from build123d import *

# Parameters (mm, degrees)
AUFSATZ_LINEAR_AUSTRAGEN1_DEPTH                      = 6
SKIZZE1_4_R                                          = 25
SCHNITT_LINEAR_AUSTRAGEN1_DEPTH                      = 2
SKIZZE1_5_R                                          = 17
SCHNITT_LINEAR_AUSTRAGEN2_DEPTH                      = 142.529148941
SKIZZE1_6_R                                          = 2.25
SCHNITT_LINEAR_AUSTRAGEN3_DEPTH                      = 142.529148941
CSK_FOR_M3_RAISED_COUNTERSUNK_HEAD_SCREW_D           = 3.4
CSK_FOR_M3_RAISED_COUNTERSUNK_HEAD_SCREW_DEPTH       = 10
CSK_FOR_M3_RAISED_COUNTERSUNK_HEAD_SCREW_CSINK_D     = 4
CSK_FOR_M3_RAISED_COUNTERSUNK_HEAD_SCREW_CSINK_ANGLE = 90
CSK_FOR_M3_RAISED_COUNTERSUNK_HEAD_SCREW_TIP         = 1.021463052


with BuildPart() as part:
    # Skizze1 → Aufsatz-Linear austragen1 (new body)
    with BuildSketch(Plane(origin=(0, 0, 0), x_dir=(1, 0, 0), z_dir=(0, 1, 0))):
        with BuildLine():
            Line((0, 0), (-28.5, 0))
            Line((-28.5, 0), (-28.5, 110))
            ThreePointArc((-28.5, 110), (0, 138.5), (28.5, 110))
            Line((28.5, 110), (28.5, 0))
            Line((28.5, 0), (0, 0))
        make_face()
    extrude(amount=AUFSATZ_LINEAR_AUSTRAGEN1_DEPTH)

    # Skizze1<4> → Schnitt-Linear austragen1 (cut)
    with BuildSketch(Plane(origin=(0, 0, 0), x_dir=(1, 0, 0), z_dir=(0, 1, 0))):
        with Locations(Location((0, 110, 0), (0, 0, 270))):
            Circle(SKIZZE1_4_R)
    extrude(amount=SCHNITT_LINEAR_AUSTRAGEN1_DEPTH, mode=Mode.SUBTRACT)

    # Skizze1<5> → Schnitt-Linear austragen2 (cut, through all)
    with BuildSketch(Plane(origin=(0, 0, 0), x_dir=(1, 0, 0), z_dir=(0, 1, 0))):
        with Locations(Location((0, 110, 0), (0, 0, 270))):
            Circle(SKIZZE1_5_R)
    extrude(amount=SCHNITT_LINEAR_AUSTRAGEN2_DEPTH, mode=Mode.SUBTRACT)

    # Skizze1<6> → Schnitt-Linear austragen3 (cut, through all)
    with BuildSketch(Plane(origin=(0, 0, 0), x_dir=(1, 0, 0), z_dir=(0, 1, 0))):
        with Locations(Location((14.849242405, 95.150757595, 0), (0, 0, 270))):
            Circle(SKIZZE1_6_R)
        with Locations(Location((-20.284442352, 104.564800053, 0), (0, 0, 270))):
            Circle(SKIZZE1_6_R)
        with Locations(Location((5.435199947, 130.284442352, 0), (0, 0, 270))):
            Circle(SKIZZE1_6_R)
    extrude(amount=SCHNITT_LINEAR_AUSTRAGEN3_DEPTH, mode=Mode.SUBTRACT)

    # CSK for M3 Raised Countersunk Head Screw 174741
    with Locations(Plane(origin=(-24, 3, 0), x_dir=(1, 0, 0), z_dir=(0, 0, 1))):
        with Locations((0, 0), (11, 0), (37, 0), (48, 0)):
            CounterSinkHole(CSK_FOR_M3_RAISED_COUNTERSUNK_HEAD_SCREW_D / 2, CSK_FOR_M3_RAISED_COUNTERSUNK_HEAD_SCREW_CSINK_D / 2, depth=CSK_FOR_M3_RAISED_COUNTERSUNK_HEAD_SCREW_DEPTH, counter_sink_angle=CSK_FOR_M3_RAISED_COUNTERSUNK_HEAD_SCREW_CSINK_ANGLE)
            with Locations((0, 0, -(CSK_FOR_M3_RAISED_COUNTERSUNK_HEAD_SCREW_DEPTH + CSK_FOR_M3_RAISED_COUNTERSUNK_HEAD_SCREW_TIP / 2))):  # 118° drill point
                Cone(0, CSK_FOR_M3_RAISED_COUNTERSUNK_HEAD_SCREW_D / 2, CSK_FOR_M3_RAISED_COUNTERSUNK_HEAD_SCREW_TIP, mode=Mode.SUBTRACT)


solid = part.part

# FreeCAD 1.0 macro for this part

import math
import FreeCAD as App
import Part
import Sketcher

doc = App.newDocument("Part")
body = doc.addObject("PartDesign::Body", "Body")

# Sketch on XZ plane
sketch1 = body.newObject("Sketcher::SketchObject", "Sketch")
sketch1.AttachmentSupport = (doc.getObject("XZ_Plane"), [""])
sketch1.MapMode = "FlatFace"
sketch1.addGeometry([
    Part.LineSegment(App.Vector(-28, -110, 0), App.Vector(-28, 0, 0)),
    Part.LineSegment(App.Vector(-28, 0, 0), App.Vector(28, 0, 0)),
    Part.LineSegment(App.Vector(28, 0, 0), App.Vector(28, -110, 0)),
    Part.ArcOfCircle(Part.Circle(App.Vector(0, -110, 0), App.Vector(0, 0, 1), 28), math.radians(180), math.radians(360)),
], False)
sketch1.addConstraint([
    Sketcher.Constraint("Coincident", 0, 2, 1, 1),
    Sketcher.Constraint("Coincident", 1, 2, 2, 1),
    Sketcher.Constraint("Tangent", 2, 2, 3, 2),
    Sketcher.Constraint("Tangent", 3, 1, 0, 1),
    Sketcher.Constraint("Vertical", 0),
    Sketcher.Constraint("Horizontal", 1),
    Sketcher.Constraint("Vertical", 2),
    Sketcher.Constraint("Symmetric", 0, 2, 1, 2, -1, 1),
    Sketcher.Constraint("Radius", 3, 28.5),
    Sketcher.Constraint("DistanceY", 0, 1, 0, 2, 110.0),
])
pad1 = body.newObject("PartDesign::Pad", "Pad")
pad1.Profile = sketch1
pad1.Length = 6
pad1.Reversed = True

# Sketch on XZ plane
sketch2 = body.newObject("Sketcher::SketchObject", "Sketch001")
sketch2.AttachmentSupport = (doc.getObject("XZ_Plane"), [""])
sketch2.MapMode = "FlatFace"
sketch2.addGeometry(Part.Circle(App.Vector(0, -110, 0), App.Vector(0, 0, 1), 25), False)
sketch2.addConstraint([
    Sketcher.Constraint("PointOnObject", 0, 3, -2),
    Sketcher.Constraint("Diameter", 0, 50.0),
    Sketcher.Constraint("DistanceY", 0, 3, -1, 1, 110.0),
])
pocket1 = body.newObject("PartDesign::Pocket", "Pocket")
pocket1.Profile = sketch2
pocket1.Length = 2

# Sketch on XZ plane
sketch3 = body.newObject("Sketcher::SketchObject", "Sketch002")
sketch3.AttachmentSupport = (doc.getObject("XZ_Plane"), [""])
sketch3.MapMode = "FlatFace"
sketch3.addGeometry(Part.Circle(App.Vector(0, -110, 0), App.Vector(0, 0, 1), 17), False)
sketch3.addConstraint([
    Sketcher.Constraint("PointOnObject", 0, 3, -2),
    Sketcher.Constraint("Diameter", 0, 34.0),
    Sketcher.Constraint("DistanceY", 0, 3, -1, 1, 110.0),
])
pocket2 = body.newObject("PartDesign::Pocket", "Pocket001")
pocket2.Profile = sketch3
pocket2.Type = "ThroughAll"

# Sketch on XZ plane
sketch4 = body.newObject("Sketcher::SketchObject", "Sketch003")
sketch4.AttachmentSupport = (doc.getObject("XZ_Plane"), [""])
sketch4.MapMode = "FlatFace"
sketch4.addGeometry([
    Part.Circle(App.Vector(14.8, -95.2, 0), App.Vector(0, 0, 1), 2.2),
    Part.Circle(App.Vector(-20.3, -104.6, 0), App.Vector(0, 0, 1), 2.2),
    Part.Circle(App.Vector(5.4, -130.3, 0), App.Vector(0, 0, 1), 2.2),
], False)
sketch4.addConstraint([
    Sketcher.Constraint("Equal", 0, 1),
    Sketcher.Constraint("Equal", 1, 2),
    Sketcher.Constraint("Diameter", 0, 4.5),
    Sketcher.Constraint("DistanceY", 1, 3, -1, 1, 104.5648),
    Sketcher.Constraint("DistanceX", -1, 1, 2, 3, 5.4352),
    Sketcher.Constraint("DistanceX", -1, 1, 0, 3, 14.849242),
    Sketcher.Constraint("DistanceY", 0, 3, -1, 1, 95.150758),
    Sketcher.Constraint("DistanceX", 1, 3, -1, 1, 20.284442),
    Sketcher.Constraint("DistanceY", 2, 3, -1, 1, 130.284442),
])
pocket3 = body.newObject("PartDesign::Pocket", "Pocket002")
pocket3.Profile = sketch4
pocket3.Type = "ThroughAll"

# Sketch on XY plane
sketch5 = body.newObject("Sketcher::SketchObject", "Sketch004")
sketch5.AttachmentSupport = (doc.getObject("XY_Plane"), [""])
sketch5.MapMode = "FlatFace"
sketch5.addGeometry([
    Part.Circle(App.Vector(-24, 3, 0), App.Vector(0, 0, 1), 1.7),
    Part.Circle(App.Vector(-13, 3, 0), App.Vector(0, 0, 1), 1.7),
    Part.Circle(App.Vector(13, 3, 0), App.Vector(0, 0, 1), 1.7),
    Part.Circle(App.Vector(24, 3, 0), App.Vector(0, 0, 1), 1.7),
], False)
sketch5.addConstraint([
    Sketcher.Constraint("Equal", 0, 1),
    Sketcher.Constraint("Equal", 1, 2),
    Sketcher.Constraint("Equal", 2, 3),
    Sketcher.Constraint("Symmetric", 1, 3, 2, 3, -2),
    Sketcher.Constraint("Symmetric", 0, 3, 3, 3, -2),
    Sketcher.Constraint("Horizontal", 0, 3, 1, 3),
    Sketcher.Constraint("Diameter", 0, 3.4),
    Sketcher.Constraint("DistanceX", 0, 3, -1, 1, 24.0),
    Sketcher.Constraint("DistanceY", -1, 1, 0, 3, 3.0),
    Sketcher.Constraint("DistanceX", 1, 3, -1, 1, 13.0),
])
doc.recompute()
hole = body.newObject("PartDesign::Hole", "Hole")
hole.Profile = sketch5
hole.ThreadType = "None"
hole.Diameter = 3.4
hole.DepthType = "Dimension"
hole.Depth = 10
hole.DrillPoint = "Angled"
hole.DrillPointAngle = 118
hole.HoleCutType = "Countersink"
hole.HoleCutDiameter = 4
hole.HoleCutCountersinkAngle = 90

doc.recompute()
